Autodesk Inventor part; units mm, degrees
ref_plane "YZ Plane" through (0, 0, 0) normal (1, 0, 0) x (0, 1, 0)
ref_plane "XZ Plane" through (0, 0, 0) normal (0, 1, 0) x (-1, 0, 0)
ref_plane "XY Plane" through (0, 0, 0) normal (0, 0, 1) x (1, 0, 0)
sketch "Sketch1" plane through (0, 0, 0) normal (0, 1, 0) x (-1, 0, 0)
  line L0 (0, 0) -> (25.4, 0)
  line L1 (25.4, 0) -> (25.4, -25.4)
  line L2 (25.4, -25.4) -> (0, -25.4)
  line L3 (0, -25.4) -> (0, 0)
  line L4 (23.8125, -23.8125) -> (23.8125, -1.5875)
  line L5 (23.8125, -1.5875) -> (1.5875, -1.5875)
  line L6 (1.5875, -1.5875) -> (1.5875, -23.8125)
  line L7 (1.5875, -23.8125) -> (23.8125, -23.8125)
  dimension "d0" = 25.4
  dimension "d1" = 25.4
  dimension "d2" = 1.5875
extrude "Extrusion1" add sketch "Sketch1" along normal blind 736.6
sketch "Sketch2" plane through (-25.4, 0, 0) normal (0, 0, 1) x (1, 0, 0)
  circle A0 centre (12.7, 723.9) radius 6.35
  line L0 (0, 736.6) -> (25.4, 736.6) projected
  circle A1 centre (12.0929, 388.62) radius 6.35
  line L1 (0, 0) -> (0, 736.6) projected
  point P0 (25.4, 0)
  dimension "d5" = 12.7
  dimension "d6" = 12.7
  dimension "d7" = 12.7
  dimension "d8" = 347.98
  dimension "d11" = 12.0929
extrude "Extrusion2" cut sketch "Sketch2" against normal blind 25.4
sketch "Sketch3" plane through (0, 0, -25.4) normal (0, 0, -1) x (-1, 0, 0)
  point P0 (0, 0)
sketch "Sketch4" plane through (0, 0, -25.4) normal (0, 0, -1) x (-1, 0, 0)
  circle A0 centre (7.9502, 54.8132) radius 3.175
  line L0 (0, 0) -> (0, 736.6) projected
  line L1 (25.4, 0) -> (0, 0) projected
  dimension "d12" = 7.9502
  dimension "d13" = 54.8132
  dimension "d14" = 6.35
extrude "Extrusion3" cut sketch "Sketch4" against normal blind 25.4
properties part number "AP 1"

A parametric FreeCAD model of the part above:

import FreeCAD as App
import Part
import Sketcher
from FreeCAD import Vector
Q = App.Units.Quantity

doc = App.newDocument("Part")
body = doc.addObject("PartDesign::Body", "Body")

sketch1 = doc.addObject("Sketcher::SketchObject", "Sketch")
body.addObject(sketch1)
sketch1.AttachmentSupport = (doc.XZ_Plane, [""])
sketch1.MapMode = "FlatFace"
sketch1.addGeometry(Part.LineSegment(Vector(-25, 0, 0), Vector(0, 0, 0)), False)
sketch1.addGeometry(Part.LineSegment(Vector(0, 0, 0), Vector(0, -25, 0)), False)
sketch1.addGeometry(Part.LineSegment(Vector(0, -25, 0), Vector(-25, -25, 0)), False)
sketch1.addGeometry(Part.LineSegment(Vector(-25, -25, 0), Vector(-25, 0, 0)), False)
sketch1.addGeometry(Part.LineSegment(Vector(-24, -2, 0), Vector(-24, -24, 0)), False)
sketch1.addGeometry(Part.LineSegment(Vector(-24, -24, 0), Vector(-2, -24, 0)), False)
sketch1.addGeometry(Part.LineSegment(Vector(-2, -24, 0), Vector(-2, -2, 0)), False)
sketch1.addGeometry(Part.LineSegment(Vector(-2, -2, 0), Vector(-24, -2, 0)), False)
sketch1.addConstraint(Sketcher.Constraint("Coincident", 0, 2, 1, 1))
sketch1.addConstraint(Sketcher.Constraint("Coincident", 1, 2, 2, 1))
sketch1.addConstraint(Sketcher.Constraint("Coincident", 2, 2, 3, 1))
sketch1.addConstraint(Sketcher.Constraint("Coincident", 3, 2, 0, 1))
sketch1.addConstraint(Sketcher.Constraint("Coincident", 4, 2, 5, 1))
sketch1.addConstraint(Sketcher.Constraint("Coincident", 5, 2, 6, 1))
sketch1.addConstraint(Sketcher.Constraint("Coincident", 6, 2, 7, 1))
sketch1.addConstraint(Sketcher.Constraint("Coincident", 7, 2, 4, 1))
sketch1.addConstraint(Sketcher.Constraint("Horizontal", 0))
sketch1.addConstraint(Sketcher.Constraint("Vertical", 1))
sketch1.addConstraint(Sketcher.Constraint("Horizontal", 2))
sketch1.addConstraint(Sketcher.Constraint("Vertical", 3))
sketch1.addConstraint(Sketcher.Constraint("Vertical", 4))
sketch1.addConstraint(Sketcher.Constraint("Horizontal", 5))
sketch1.addConstraint(Sketcher.Constraint("Vertical", 6))
sketch1.addConstraint(Sketcher.Constraint("Horizontal", 7))
sketch1.addConstraint(Sketcher.Constraint("Coincident", 0, 2, -1, 1))
sketch1.addConstraint(Sketcher.Constraint("Equal", 2, 1))
sketch1.addConstraint(Sketcher.Constraint("Equal", 7, 4))
sketch1.addConstraint(Sketcher.Constraint("DistanceX", 0, 1, 0, 2, Q("1 in")))
sketch1.addConstraint(Sketcher.Constraint("DistanceX", 5, 2, -1, 1, Q("0.0625 in")))
sketch1.addConstraint(Sketcher.Constraint("DistanceY", 6, 2, -1, 1, Q("0.0625 in")))
sketch1.addConstraint(Sketcher.Constraint("DistanceX", 2, 2, 4, 2, Q("0.0625 in")))
pad1 = doc.addObject("PartDesign::Pad", "Pad")
body.addObject(pad1)
pad1.Profile = sketch1
pad1.Length = Q("29 in")
pad1.Reversed = True

sketch2 = doc.addObject("Sketcher::SketchObject", "Sketch001")
body.addObject(sketch2)
sketch2.AttachmentSupport = (doc.XY_Plane, [""])
sketch2.MapMode = "FlatFace"
sketch2.addGeometry(Part.Circle(Vector(-13, 724, 0), Vector(0, 0, 1), 6), False)
sketch2.addGeometry(Part.Circle(Vector(-13, 389, 0), Vector(0, 0, 1), 6), False)
sketch2.addConstraint(Sketcher.Constraint("Equal", 0, 1))
sketch2.addConstraint(Sketcher.Constraint("Diameter", 0, Q("0.5 in")))
sketch2.addConstraint(Sketcher.Constraint("DistanceX", 0, 3, -1, 1, Q("0.5 in")))
sketch2.addConstraint(Sketcher.Constraint("DistanceY", -1, 1, 0, 3, Q("28.5 in")))
sketch2.addConstraint(Sketcher.Constraint("DistanceY", -1, 1, 1, 3, Q("15.3 in")))
sketch2.addConstraint(Sketcher.Constraint("DistanceX", 1, 3, -1, 1, Q("0.5239 in")))
pocket1 = doc.addObject("PartDesign::Pocket", "Pocket")
body.addObject(pocket1)
pocket1.Profile = sketch2
pocket1.Length = Q("1 in")

sketch3 = doc.addObject("Sketcher::SketchObject", "Sketch002")
body.addObject(sketch3)
sketch3.AttachmentSupport = (doc.XY_Plane, [""])
sketch3.MapMode = "FlatFace"
sketch3.AttachmentOffset = App.Placement(Vector(0, 0, -1 * 25.4), App.Rotation())
sketch3.addGeometry(Part.Circle(Vector(-8, 54.8, 0), Vector(0, 0, 1), 3.2), False)
sketch3.addConstraint(Sketcher.Constraint("Diameter", 0, Q("0.25 in")))
sketch3.addConstraint(Sketcher.Constraint("DistanceX", 0, 3, -1, 1, Q("0.313 in")))
sketch3.addConstraint(Sketcher.Constraint("DistanceY", -1, 1, 0, 3, Q("2.158 in")))
pocket2 = doc.addObject("PartDesign::Pocket", "Pocket001")
body.addObject(pocket2)
pocket2.Profile = sketch3
pocket2.Length = Q("1 in")
pocket2.Reversed = True

doc.recompute()
